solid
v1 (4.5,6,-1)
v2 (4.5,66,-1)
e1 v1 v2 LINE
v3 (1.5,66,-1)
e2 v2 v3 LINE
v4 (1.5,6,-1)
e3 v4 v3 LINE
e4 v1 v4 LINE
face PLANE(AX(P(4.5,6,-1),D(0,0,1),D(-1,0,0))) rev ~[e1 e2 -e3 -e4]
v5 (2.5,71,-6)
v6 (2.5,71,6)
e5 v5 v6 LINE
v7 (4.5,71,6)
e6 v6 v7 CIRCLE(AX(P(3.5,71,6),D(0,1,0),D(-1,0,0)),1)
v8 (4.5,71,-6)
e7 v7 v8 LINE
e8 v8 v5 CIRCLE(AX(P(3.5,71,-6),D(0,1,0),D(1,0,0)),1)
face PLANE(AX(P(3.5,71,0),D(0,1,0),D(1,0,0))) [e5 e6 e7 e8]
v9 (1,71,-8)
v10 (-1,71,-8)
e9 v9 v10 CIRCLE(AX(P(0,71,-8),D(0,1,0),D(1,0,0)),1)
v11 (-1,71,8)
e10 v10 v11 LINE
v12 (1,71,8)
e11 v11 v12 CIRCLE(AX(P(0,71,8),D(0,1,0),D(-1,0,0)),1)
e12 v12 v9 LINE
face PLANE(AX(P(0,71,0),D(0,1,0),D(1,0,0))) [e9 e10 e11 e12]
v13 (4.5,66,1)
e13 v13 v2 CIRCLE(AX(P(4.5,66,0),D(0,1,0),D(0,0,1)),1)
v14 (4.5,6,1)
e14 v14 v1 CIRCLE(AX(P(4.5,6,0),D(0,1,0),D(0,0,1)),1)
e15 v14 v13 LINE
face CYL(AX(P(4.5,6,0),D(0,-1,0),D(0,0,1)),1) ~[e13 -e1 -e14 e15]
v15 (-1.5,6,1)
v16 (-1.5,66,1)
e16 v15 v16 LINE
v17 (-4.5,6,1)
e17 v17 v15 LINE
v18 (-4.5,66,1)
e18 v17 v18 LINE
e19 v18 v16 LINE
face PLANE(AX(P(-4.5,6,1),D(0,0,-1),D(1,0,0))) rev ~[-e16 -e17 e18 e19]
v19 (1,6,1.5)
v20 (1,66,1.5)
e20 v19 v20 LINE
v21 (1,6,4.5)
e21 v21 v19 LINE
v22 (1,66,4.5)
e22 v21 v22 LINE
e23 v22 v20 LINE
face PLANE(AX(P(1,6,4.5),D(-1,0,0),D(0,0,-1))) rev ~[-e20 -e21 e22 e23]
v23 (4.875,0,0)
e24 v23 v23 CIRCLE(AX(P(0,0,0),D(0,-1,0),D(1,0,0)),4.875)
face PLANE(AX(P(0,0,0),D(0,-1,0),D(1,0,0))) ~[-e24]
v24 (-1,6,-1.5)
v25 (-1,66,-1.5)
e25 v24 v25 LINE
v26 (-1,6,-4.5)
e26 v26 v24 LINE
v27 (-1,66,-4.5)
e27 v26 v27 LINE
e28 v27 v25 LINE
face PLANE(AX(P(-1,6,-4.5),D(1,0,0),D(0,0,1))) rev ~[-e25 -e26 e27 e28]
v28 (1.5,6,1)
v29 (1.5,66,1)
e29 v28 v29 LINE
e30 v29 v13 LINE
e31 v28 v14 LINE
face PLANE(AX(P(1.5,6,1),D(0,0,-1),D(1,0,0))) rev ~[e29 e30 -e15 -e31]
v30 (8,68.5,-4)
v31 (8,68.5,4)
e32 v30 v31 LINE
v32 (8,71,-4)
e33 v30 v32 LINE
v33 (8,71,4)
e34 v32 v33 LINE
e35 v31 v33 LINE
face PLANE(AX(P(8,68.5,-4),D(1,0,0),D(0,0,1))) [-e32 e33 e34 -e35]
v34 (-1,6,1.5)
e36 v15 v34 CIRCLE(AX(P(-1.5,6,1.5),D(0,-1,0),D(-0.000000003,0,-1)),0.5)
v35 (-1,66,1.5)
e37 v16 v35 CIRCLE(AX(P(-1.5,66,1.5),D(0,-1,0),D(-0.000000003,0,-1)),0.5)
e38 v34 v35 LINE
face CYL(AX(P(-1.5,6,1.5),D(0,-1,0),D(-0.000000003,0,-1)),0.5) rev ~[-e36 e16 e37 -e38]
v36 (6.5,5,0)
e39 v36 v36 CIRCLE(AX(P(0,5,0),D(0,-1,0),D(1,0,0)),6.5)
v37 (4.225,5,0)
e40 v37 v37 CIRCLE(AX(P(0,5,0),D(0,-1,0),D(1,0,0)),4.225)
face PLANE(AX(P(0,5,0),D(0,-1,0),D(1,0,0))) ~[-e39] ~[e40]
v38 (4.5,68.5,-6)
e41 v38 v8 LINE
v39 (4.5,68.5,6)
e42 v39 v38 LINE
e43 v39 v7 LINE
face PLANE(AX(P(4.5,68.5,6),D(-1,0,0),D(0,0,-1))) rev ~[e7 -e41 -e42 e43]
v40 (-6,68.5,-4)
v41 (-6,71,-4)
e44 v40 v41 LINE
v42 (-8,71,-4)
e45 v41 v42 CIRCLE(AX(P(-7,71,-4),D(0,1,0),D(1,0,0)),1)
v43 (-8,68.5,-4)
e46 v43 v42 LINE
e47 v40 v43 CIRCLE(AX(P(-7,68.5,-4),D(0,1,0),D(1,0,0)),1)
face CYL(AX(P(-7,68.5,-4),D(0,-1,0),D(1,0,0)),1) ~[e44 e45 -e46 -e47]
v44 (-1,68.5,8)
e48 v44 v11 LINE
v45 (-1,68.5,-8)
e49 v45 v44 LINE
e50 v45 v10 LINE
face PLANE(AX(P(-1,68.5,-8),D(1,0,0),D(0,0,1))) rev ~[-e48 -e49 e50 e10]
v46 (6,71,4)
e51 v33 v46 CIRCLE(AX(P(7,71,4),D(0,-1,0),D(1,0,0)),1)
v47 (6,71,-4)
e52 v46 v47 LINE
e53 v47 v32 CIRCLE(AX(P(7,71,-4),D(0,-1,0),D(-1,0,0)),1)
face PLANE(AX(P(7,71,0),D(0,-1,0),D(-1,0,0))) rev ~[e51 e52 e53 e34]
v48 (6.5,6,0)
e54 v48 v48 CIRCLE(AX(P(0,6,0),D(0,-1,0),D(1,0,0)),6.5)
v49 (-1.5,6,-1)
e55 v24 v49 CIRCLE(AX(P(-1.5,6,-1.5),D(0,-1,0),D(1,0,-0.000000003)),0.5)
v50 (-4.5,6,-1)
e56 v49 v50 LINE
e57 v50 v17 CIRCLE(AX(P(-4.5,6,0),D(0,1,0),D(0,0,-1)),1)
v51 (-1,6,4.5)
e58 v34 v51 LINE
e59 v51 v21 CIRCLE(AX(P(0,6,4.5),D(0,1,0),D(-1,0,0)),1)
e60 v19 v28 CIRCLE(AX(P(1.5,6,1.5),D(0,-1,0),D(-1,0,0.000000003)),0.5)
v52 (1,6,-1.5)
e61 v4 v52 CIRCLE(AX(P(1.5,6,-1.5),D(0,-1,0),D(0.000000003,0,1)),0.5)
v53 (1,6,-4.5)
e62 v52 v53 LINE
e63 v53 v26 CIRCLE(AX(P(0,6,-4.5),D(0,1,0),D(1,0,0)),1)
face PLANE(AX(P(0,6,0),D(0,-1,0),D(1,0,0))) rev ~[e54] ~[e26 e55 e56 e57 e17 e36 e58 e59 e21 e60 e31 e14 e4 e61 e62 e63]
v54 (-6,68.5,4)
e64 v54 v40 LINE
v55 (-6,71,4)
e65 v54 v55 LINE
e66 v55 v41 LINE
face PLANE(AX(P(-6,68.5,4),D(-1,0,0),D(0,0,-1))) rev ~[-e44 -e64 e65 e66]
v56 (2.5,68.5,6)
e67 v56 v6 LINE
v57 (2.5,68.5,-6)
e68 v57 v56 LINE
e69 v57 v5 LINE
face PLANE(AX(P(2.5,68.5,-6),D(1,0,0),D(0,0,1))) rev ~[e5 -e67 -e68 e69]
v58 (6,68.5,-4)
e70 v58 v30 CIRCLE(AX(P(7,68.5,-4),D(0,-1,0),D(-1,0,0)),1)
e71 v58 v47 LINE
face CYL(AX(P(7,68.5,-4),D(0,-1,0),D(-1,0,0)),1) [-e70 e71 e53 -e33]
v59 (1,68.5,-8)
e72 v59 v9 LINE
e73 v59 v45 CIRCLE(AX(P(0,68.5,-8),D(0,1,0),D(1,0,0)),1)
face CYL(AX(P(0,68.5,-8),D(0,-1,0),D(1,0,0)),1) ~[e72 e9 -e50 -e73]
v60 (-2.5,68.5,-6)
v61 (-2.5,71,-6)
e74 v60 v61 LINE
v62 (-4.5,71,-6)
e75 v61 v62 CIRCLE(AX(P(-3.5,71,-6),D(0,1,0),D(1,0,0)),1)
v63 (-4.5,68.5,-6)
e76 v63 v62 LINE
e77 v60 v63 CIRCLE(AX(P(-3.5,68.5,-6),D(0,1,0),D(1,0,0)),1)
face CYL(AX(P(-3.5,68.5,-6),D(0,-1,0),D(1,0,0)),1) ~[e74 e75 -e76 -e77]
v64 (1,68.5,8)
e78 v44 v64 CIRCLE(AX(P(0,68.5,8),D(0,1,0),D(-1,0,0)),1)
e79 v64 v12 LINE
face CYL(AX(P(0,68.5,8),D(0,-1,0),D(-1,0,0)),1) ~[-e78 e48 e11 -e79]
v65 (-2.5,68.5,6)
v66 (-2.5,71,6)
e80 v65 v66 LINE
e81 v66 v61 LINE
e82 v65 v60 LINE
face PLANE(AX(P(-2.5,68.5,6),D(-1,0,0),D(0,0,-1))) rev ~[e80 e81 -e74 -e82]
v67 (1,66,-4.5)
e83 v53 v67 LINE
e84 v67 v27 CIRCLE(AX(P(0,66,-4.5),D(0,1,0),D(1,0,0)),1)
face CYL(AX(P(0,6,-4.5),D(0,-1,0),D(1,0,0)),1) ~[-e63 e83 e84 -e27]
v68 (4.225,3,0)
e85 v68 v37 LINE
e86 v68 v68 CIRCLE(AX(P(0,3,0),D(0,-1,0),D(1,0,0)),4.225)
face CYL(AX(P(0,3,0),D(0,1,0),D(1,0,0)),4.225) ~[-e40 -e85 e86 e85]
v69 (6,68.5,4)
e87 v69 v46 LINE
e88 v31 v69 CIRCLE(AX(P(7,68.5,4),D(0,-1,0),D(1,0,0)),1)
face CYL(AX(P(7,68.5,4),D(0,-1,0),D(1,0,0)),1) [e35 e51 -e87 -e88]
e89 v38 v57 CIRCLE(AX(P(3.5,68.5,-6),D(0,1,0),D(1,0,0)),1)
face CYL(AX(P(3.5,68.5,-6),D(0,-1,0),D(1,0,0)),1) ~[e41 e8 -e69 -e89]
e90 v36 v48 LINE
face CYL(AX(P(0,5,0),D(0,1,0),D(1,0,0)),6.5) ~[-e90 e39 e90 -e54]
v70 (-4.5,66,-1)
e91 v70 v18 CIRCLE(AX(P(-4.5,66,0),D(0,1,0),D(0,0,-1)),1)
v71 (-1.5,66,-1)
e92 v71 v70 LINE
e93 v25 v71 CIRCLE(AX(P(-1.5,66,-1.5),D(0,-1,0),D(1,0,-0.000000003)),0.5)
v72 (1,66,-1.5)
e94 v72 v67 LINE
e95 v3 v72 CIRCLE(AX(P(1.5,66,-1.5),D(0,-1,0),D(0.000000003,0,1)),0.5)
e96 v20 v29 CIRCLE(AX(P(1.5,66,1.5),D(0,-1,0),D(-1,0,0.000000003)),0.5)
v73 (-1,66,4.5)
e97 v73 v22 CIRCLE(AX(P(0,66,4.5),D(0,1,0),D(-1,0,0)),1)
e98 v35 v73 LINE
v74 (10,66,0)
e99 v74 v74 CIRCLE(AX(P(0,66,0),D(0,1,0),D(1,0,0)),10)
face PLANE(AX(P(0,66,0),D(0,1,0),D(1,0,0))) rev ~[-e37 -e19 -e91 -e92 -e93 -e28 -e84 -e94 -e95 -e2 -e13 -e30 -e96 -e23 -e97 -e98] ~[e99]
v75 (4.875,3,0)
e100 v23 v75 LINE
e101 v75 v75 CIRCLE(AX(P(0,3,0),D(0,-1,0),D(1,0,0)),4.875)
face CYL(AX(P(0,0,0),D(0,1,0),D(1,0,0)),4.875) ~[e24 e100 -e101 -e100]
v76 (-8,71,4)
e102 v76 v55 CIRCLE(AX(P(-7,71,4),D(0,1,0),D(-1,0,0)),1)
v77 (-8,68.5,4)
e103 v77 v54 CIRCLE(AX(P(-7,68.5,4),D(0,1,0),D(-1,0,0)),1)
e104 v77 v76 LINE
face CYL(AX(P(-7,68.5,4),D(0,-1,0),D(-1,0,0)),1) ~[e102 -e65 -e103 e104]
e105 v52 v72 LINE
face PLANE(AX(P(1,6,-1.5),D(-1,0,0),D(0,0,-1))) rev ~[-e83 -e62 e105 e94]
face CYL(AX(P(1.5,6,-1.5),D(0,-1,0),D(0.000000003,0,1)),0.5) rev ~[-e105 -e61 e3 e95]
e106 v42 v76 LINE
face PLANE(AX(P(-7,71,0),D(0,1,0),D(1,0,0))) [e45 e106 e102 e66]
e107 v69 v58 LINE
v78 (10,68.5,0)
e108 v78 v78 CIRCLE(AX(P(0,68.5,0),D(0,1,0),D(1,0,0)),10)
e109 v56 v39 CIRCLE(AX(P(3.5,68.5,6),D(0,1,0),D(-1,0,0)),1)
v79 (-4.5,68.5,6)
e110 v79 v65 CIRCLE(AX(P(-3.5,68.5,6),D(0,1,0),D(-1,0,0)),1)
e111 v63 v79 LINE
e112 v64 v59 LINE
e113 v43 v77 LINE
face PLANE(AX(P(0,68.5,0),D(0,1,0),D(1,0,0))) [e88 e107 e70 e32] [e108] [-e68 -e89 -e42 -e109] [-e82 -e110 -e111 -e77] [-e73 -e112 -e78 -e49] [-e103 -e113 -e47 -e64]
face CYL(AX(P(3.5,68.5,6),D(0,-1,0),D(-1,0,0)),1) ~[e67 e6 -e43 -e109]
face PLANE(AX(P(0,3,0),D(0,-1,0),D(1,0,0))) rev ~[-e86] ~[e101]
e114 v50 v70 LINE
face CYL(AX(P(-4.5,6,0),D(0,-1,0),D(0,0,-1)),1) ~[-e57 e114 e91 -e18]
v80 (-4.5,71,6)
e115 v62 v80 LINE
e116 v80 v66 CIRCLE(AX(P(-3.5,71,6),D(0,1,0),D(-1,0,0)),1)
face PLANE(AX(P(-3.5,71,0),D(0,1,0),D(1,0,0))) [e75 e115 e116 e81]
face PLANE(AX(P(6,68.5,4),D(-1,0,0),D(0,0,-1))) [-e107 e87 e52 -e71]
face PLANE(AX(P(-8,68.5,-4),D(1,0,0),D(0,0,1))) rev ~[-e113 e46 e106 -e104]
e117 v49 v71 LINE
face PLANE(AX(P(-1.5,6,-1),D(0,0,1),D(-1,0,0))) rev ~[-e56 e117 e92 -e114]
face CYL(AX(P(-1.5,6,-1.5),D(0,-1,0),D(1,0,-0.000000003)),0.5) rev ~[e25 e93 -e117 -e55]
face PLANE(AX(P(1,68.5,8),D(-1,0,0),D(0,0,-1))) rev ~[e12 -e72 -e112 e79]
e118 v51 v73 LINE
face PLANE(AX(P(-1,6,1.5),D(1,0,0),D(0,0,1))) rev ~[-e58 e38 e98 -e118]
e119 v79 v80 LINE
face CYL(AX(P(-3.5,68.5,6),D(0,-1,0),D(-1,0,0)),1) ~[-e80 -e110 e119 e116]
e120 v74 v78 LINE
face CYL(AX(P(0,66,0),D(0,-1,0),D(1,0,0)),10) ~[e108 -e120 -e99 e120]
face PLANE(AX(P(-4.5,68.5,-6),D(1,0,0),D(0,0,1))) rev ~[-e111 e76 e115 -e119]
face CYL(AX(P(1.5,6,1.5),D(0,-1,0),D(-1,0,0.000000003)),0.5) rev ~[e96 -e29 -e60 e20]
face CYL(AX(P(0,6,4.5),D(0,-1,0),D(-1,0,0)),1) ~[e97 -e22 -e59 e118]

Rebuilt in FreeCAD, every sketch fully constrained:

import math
import FreeCAD as App
import Part
import Sketcher


def add_polygon(sketch, points):
    """Adds a closed chain of lines whose ends are joined by coincident constraints."""
    first, n = sketch.GeometryCount, len(points)
    for a, b in zip(points, points[1:] + points[:1]):
        sketch.addGeometry(Part.LineSegment(App.Vector(*a, 0), App.Vector(*b, 0)), False)
    for i in range(n):
        sketch.addConstraint(Sketcher.Constraint("Coincident", first + i, 2, first + (i + 1) % n, 1))

doc = App.newDocument("Part")
body = doc.addObject("PartDesign::Body", "Body")

# Sketch on XY plane
sketch1 = body.newObject("Sketcher::SketchObject", "Sketch")
sketch1.AttachmentSupport = (doc.getObject("XY_Plane"), [""])
sketch1.MapMode = "FlatFace"
add_polygon(sketch1, [(0, 0), (4.9, 0), (4.9, 3), (4.2, 3), (4.2, 5), (6.5, 5), (6.5, 6), (0, 6)])  # lines 0-7
sketch1.addConstraint(Sketcher.Constraint("Horizontal", 0))
sketch1.addConstraint(Sketcher.Constraint("Vertical", 1))
sketch1.addConstraint(Sketcher.Constraint("Horizontal", 2))
sketch1.addConstraint(Sketcher.Constraint("Vertical", 3))
sketch1.addConstraint(Sketcher.Constraint("Horizontal", 4))
sketch1.addConstraint(Sketcher.Constraint("Vertical", 5))
sketch1.addConstraint(Sketcher.Constraint("Horizontal", 6))
sketch1.addConstraint(Sketcher.Constraint("Vertical", 7))
sketch1.addConstraint(Sketcher.Constraint("Coincident", 7, 2, -1, 1))
sketch1.addConstraint(Sketcher.Constraint("DistanceY", 1, 1, 1, 2, 3.0))
sketch1.addConstraint(Sketcher.Constraint("DistanceY", 3, 1, 3, 2, 2.0))
sketch1.addConstraint(Sketcher.Constraint("DistanceY", 5, 1, 5, 2, 1.0))
sketch1.addConstraint(Sketcher.Constraint("DistanceX", 6, 2, 6, 1, 6.5))
sketch1.addConstraint(Sketcher.Constraint("DistanceX", 2, 2, 2, 1, 0.65))
sketch1.addConstraint(Sketcher.Constraint("DistanceX", 0, 1, 0, 2, 4.875))
revolution = body.newObject("PartDesign::Revolution", "Revolution")
revolution.Profile = sketch1
revolution.ReferenceAxis = (sketch1, ["V_Axis"])
revolution.Angle = 360

# Sketch on XZ plane
sketch2 = body.newObject("Sketcher::SketchObject", "Sketch001")
sketch2.AttachmentSupport = (doc.getObject("XZ_Plane"), [""])
sketch2.MapMode = "FlatFace"
sketch2.AttachmentOffset = App.Placement(App.Vector(0, 0, -6), App.Rotation())
sketch2.addGeometry(Part.LineSegment(App.Vector(-1, -4.5, 0), App.Vector(-1, -1.5, 0)), False)
sketch2.addGeometry(Part.ArcOfCircle(Part.Circle(App.Vector(-1.5, -1.5, 0), App.Vector(0, 0, 1), 0.5), math.radians(0), math.radians(90)), False)
sketch2.addGeometry(Part.LineSegment(App.Vector(-1.5, -1, 0), App.Vector(-4.5, -1, 0)), False)
sketch2.addGeometry(Part.ArcOfCircle(Part.Circle(App.Vector(-4.5, 0, 0), App.Vector(0, 0, 1), 1), math.radians(90), math.radians(270)), False)
sketch2.addGeometry(Part.LineSegment(App.Vector(-4.5, 1, 0), App.Vector(-1.5, 1, 0)), False)
sketch2.addGeometry(Part.ArcOfCircle(Part.Circle(App.Vector(-1.5, 1.5, 0), App.Vector(0, 0, 1), 0.5), math.radians(-90), math.radians(0)), False)
sketch2.addGeometry(Part.LineSegment(App.Vector(-1, 1.5, 0), App.Vector(-1, 4.5, 0)), False)
sketch2.addGeometry(Part.ArcOfCircle(Part.Circle(App.Vector(0, 4.5, 0), App.Vector(0, 0, 1), 1), math.radians(0), math.radians(180)), False)
sketch2.addGeometry(Part.LineSegment(App.Vector(1, 4.5, 0), App.Vector(1, 1.5, 0)), False)
sketch2.addGeometry(Part.ArcOfCircle(Part.Circle(App.Vector(1.5, 1.5, 0), App.Vector(0, 0, 1), 0.5), math.radians(180), math.radians(270)), False)
sketch2.addGeometry(Part.LineSegment(App.Vector(1.5, 1, 0), App.Vector(4.5, 1, 0)), False)
sketch2.addGeometry(Part.ArcOfCircle(Part.Circle(App.Vector(4.5, 0, 0), App.Vector(0, 0, 1), 1), math.radians(-90), math.radians(90)), False)
sketch2.addGeometry(Part.LineSegment(App.Vector(4.5, -1, 0), App.Vector(1.5, -1, 0)), False)
sketch2.addGeometry(Part.ArcOfCircle(Part.Circle(App.Vector(1.5, -1.5, 0), App.Vector(0, 0, 1), 0.5), math.radians(90), math.radians(180)), False)
sketch2.addGeometry(Part.LineSegment(App.Vector(1, -1.5, 0), App.Vector(1, -4.5, 0)), False)
sketch2.addGeometry(Part.ArcOfCircle(Part.Circle(App.Vector(0, -4.5, 0), App.Vector(0, 0, 1), 1), math.radians(180), math.radians(360)), False)
sketch2.addConstraint(Sketcher.Constraint("Tangent", 0, 2, 1, 1))
sketch2.addConstraint(Sketcher.Constraint("Tangent", 1, 2, 2, 1))
sketch2.addConstraint(Sketcher.Constraint("Tangent", 2, 2, 3, 2))
sketch2.addConstraint(Sketcher.Constraint("Tangent", 3, 1, 4, 1))
sketch2.addConstraint(Sketcher.Constraint("Tangent", 4, 2, 5, 1))
sketch2.addConstraint(Sketcher.Constraint("Tangent", 5, 2, 6, 1))
sketch2.addConstraint(Sketcher.Constraint("Tangent", 6, 2, 7, 2))
sketch2.addConstraint(Sketcher.Constraint("Tangent", 7, 1, 8, 1))
sketch2.addConstraint(Sketcher.Constraint("Tangent", 8, 2, 9, 1))
sketch2.addConstraint(Sketcher.Constraint("Tangent", 9, 2, 10, 1))
sketch2.addConstraint(Sketcher.Constraint("Tangent", 10, 2, 11, 2))
sketch2.addConstraint(Sketcher.Constraint("Tangent", 11, 1, 12, 1))
sketch2.addConstraint(Sketcher.Constraint("Tangent", 12, 2, 13, 1))
sketch2.addConstraint(Sketcher.Constraint("Tangent", 13, 2, 14, 1))
sketch2.addConstraint(Sketcher.Constraint("Tangent", 14, 2, 15, 2))
sketch2.addConstraint(Sketcher.Constraint("Tangent", 15, 1, 0, 1))
sketch2.addConstraint(Sketcher.Constraint("Vertical", 0))
sketch2.addConstraint(Sketcher.Constraint("Horizontal", 2))
sketch2.addConstraint(Sketcher.Constraint("Horizontal", 4))
sketch2.addConstraint(Sketcher.Constraint("Vertical", 6))
sketch2.addConstraint(Sketcher.Constraint("Vertical", 8))
sketch2.addConstraint(Sketcher.Constraint("Horizontal", 10))
sketch2.addConstraint(Sketcher.Constraint("Horizontal", 12))
sketch2.addConstraint(Sketcher.Constraint("Vertical", 14))
sketch2.addConstraint(Sketcher.Constraint("Equal", 1, 5))
sketch2.addConstraint(Sketcher.Constraint("Equal", 3, 7))
sketch2.addConstraint(Sketcher.Constraint("Equal", 5, 9))
sketch2.addConstraint(Sketcher.Constraint("Equal", 7, 11))
sketch2.addConstraint(Sketcher.Constraint("Equal", 9, 13))
sketch2.addConstraint(Sketcher.Constraint("Equal", 11, 15))
sketch2.addConstraint(Sketcher.Constraint("Symmetric", 1, 3, 9, 3, -1, 1))
sketch2.addConstraint(Sketcher.Constraint("Symmetric", 5, 3, 9, 3, -2))
sketch2.addConstraint(Sketcher.Constraint("Equal", 4, 10))
sketch2.addConstraint(Sketcher.Constraint("Equal", 12, 0))
sketch2.addConstraint(Sketcher.Constraint("Equal", 0, 6))
sketch2.addConstraint(Sketcher.Constraint("Radius", 3, 1.0))
sketch2.addConstraint(Sketcher.Constraint("Radius", 1, 0.5))
sketch2.addConstraint(Sketcher.Constraint("DistanceX", 2, 2, 2, 1, 3.0))
pad1 = body.newObject("PartDesign::Pad", "Pad")
pad1.Profile = sketch2
pad1.Length = 60
pad1.Reversed = True

# Sketch on XZ plane
sketch3 = body.newObject("Sketcher::SketchObject", "Sketch002")
sketch3.AttachmentSupport = (doc.getObject("XZ_Plane"), [""])
sketch3.MapMode = "FlatFace"
sketch3.AttachmentOffset = App.Placement(App.Vector(0, 0, -66), App.Rotation())
sketch3.addGeometry(Part.Circle(App.Vector(0, 0, 0), App.Vector(0, 0, 1), 10), False)
sketch3.addConstraint(Sketcher.Constraint("Coincident", 0, 3, -1, 1))
sketch3.addConstraint(Sketcher.Constraint("Diameter", 0, 20.0))
pad2 = body.newObject("PartDesign::Pad", "Pad001")
pad2.Profile = sketch3
pad2.Length = 2.5
pad2.Reversed = True

# Sketch on XZ plane
sketch4 = body.newObject("Sketcher::SketchObject", "Sketch003")
sketch4.AttachmentSupport = (doc.getObject("XZ_Plane"), [""])
sketch4.MapMode = "FlatFace"
sketch4.AttachmentOffset = App.Placement(App.Vector(0, 0, -68.5), App.Rotation())
sketch4.addGeometry(Part.ArcOfCircle(Part.Circle(App.Vector(0, -8, 0), App.Vector(0, 0, 1), 1), math.radians(180), math.radians(360)), False)
sketch4.addGeometry(Part.LineSegment(App.Vector(-1, -8, 0), App.Vector(-1, 8, 0)), False)
sketch4.addGeometry(Part.ArcOfCircle(Part.Circle(App.Vector(0, 8, 0), App.Vector(0, 0, 1), 1), math.radians(0), math.radians(180)), False)
sketch4.addGeometry(Part.LineSegment(App.Vector(1, 8, 0), App.Vector(1, -8, 0)), False)
sketch4.addGeometry(Part.ArcOfCircle(Part.Circle(App.Vector(-3.5, -6, 0), App.Vector(0, 0, 1), 1), math.radians(180), math.radians(360)), False)
sketch4.addGeometry(Part.LineSegment(App.Vector(-4.5, -6, 0), App.Vector(-4.5, 6, 0)), False)
sketch4.addGeometry(Part.ArcOfCircle(Part.Circle(App.Vector(-3.5, 6, 0), App.Vector(0, 0, 1), 1), math.radians(0), math.radians(180)), False)
sketch4.addGeometry(Part.LineSegment(App.Vector(-2.5, 6, 0), App.Vector(-2.5, -6, 0)), False)
sketch4.addGeometry(Part.ArcOfCircle(Part.Circle(App.Vector(3.5, -6, 0), App.Vector(0, 0, 1), 1), math.radians(180), math.radians(360)), False)
sketch4.addGeometry(Part.LineSegment(App.Vector(2.5, -6, 0), App.Vector(2.5, 6, 0)), False)
sketch4.addGeometry(Part.ArcOfCircle(Part.Circle(App.Vector(3.5, 6, 0), App.Vector(0, 0, 1), 1), math.radians(0), math.radians(180)), False)
sketch4.addGeometry(Part.LineSegment(App.Vector(4.5, 6, 0), App.Vector(4.5, -6, 0)), False)
sketch4.addGeometry(Part.ArcOfCircle(Part.Circle(App.Vector(7, -4, 0), App.Vector(0, 0, 1), 1), math.radians(180), math.radians(360)), False)
sketch4.addGeometry(Part.LineSegment(App.Vector(6, -4, 0), App.Vector(6, 4, 0)), False)
sketch4.addGeometry(Part.ArcOfCircle(Part.Circle(App.Vector(7, 4, 0), App.Vector(0, 0, 1), 1), math.radians(0), math.radians(180)), False)
sketch4.addGeometry(Part.LineSegment(App.Vector(8, 4, 0), App.Vector(8, -4, 0)), False)
sketch4.addGeometry(Part.LineSegment(App.Vector(-6, 4, 0), App.Vector(-6, -4, 0)), False)
sketch4.addGeometry(Part.ArcOfCircle(Part.Circle(App.Vector(-7, -4, 0), App.Vector(0, 0, 1), 1), math.radians(180), math.radians(360)), False)
sketch4.addGeometry(Part.LineSegment(App.Vector(-8, -4, 0), App.Vector(-8, 4, 0)), False)
sketch4.addGeometry(Part.ArcOfCircle(Part.Circle(App.Vector(-7, 4, 0), App.Vector(0, 0, 1), 1), math.radians(0), math.radians(180)), False)
sketch4.addConstraint(Sketcher.Constraint("Tangent", 0, 1, 1, 1))
sketch4.addConstraint(Sketcher.Constraint("Tangent", 1, 2, 2, 2))
sketch4.addConstraint(Sketcher.Constraint("Tangent", 2, 1, 3, 1))
sketch4.addConstraint(Sketcher.Constraint("Tangent", 3, 2, 0, 2))
sketch4.addConstraint(Sketcher.Constraint("Tangent", 4, 1, 5, 1))
sketch4.addConstraint(Sketcher.Constraint("Tangent", 5, 2, 6, 2))
sketch4.addConstraint(Sketcher.Constraint("Tangent", 6, 1, 7, 1))
sketch4.addConstraint(Sketcher.Constraint("Tangent", 7, 2, 4, 2))
sketch4.addConstraint(Sketcher.Constraint("Tangent", 8, 1, 9, 1))
sketch4.addConstraint(Sketcher.Constraint("Tangent", 9, 2, 10, 2))
sketch4.addConstraint(Sketcher.Constraint("Tangent", 10, 1, 11, 1))
sketch4.addConstraint(Sketcher.Constraint("Tangent", 11, 2, 8, 2))
sketch4.addConstraint(Sketcher.Constraint("Tangent", 12, 1, 13, 1))
sketch4.addConstraint(Sketcher.Constraint("Tangent", 13, 2, 14, 2))
sketch4.addConstraint(Sketcher.Constraint("Tangent", 14, 1, 15, 1))
sketch4.addConstraint(Sketcher.Constraint("Tangent", 15, 2, 12, 2))
sketch4.addConstraint(Sketcher.Constraint("Tangent", 16, 2, 17, 2))
sketch4.addConstraint(Sketcher.Constraint("Tangent", 17, 1, 18, 1))
sketch4.addConstraint(Sketcher.Constraint("Tangent", 18, 2, 19, 2))
sketch4.addConstraint(Sketcher.Constraint("Tangent", 19, 1, 16, 1))
sketch4.addConstraint(Sketcher.Constraint("Vertical", 1))
sketch4.addConstraint(Sketcher.Constraint("Vertical", 3))
sketch4.addConstraint(Sketcher.Constraint("Vertical", 5))
sketch4.addConstraint(Sketcher.Constraint("Vertical", 7))
sketch4.addConstraint(Sketcher.Constraint("Vertical", 9))
sketch4.addConstraint(Sketcher.Constraint("Vertical", 11))
sketch4.addConstraint(Sketcher.Constraint("Vertical", 13))
sketch4.addConstraint(Sketcher.Constraint("Vertical", 15))
sketch4.addConstraint(Sketcher.Constraint("Vertical", 16))
sketch4.addConstraint(Sketcher.Constraint("Vertical", 18))
sketch4.addConstraint(Sketcher.Constraint("Equal", 2, 4))
sketch4.addConstraint(Sketcher.Constraint("Equal", 6, 8))
sketch4.addConstraint(Sketcher.Constraint("Equal", 10, 12))
sketch4.addConstraint(Sketcher.Constraint("Equal", 14, 17))
sketch4.addConstraint(Sketcher.Constraint("Symmetric", 0, 3, 2, 3, -1, 1))
sketch4.addConstraint(Sketcher.Constraint("Symmetric", 6, 3, 8, 3, -1, 1))
sketch4.addConstraint(Sketcher.Constraint("Symmetric", 14, 3, 17, 3, -1, 1))
sketch4.addConstraint(Sketcher.Constraint("Horizontal", 4, 3, 8, 3))
sketch4.addConstraint(Sketcher.Constraint("Horizontal", 6, 3, 10, 3))
sketch4.addConstraint(Sketcher.Constraint("Horizontal", 12, 3, 17, 3))
sketch4.addConstraint(Sketcher.Constraint("Horizontal", 14, 3, 19, 3))
sketch4.addConstraint(Sketcher.Constraint("Radius", 0, 1.0))
sketch4.addConstraint(Sketcher.Constraint("DistanceY", 1, 1, 1, 2, 16.0))
sketch4.addConstraint(Sketcher.Constraint("DistanceY", 5, 1, 5, 2, 12.0))
sketch4.addConstraint(Sketcher.Constraint("DistanceY", 13, 1, 13, 2, 8.0))
sketch4.addConstraint(Sketcher.Constraint("DistanceX", -1, 1, 12, 3, 7.0))
sketch4.addConstraint(Sketcher.Constraint("DistanceX", 4, 3, 8, 3, 7.0))
pad3 = body.newObject("PartDesign::Pad", "Pad002")
pad3.Profile = sketch4
pad3.Length = 2.5
pad3.Reversed = True

doc.recompute()
